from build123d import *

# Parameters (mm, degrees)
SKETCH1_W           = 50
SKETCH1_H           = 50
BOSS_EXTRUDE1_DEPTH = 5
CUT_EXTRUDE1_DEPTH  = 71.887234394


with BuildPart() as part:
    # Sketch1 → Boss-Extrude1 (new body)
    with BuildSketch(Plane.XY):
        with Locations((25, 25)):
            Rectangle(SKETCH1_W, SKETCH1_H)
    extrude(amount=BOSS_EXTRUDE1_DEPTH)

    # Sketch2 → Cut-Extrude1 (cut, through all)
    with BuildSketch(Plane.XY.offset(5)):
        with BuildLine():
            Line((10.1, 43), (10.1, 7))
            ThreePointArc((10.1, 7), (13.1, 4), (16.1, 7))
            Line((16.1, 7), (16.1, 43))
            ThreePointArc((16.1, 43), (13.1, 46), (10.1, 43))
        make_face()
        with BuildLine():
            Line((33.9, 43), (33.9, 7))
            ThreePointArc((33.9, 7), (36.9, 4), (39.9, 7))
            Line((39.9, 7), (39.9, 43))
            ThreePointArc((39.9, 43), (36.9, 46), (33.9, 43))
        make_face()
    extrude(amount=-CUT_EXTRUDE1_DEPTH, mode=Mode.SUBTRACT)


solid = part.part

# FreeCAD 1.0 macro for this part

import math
import FreeCAD as App
import Part
import Sketcher

V = App.Vector


def add_polygon(sketch, points):
    """Adds a closed chain of lines whose ends are joined by coincident constraints."""
    first, n = sketch.GeometryCount, len(points)
    for a, b in zip(points, points[1:] + points[:1]):
        sketch.addGeometry(Part.LineSegment(App.Vector(*a, 0), App.Vector(*b, 0)), False)
    for i in range(n):
        sketch.addConstraint(Sketcher.Constraint("Coincident", first + i, 2, first + (i + 1) % n, 1))

doc = App.newDocument("Part")
body = doc.addObject("PartDesign::Body", "Body")

# Sketch on XY plane
sketch1 = body.newObject("Sketcher::SketchObject", "Sketch")
sketch1.AttachmentSupport = (doc.getObject("XY_Plane"), [""])
sketch1.MapMode = "FlatFace"
add_polygon(sketch1, [(0, 50), (0, 0), (50, 0), (50, 50)])  # lines 0-3
sketch1.addConstraint(Sketcher.Constraint("Vertical", 0))
sketch1.addConstraint(Sketcher.Constraint("Horizontal", 1))
sketch1.addConstraint(Sketcher.Constraint("Vertical", 2))
sketch1.addConstraint(Sketcher.Constraint("Horizontal", 3))
sketch1.addConstraint(Sketcher.Constraint("Coincident", 0, 2, -1, 1))
sketch1.addConstraint(Sketcher.Constraint("Equal", 3, 0))
sketch1.addConstraint(Sketcher.Constraint("DistanceX", 1, 1, 1, 2, 50.0))
pad1 = body.newObject("PartDesign::Pad", "Pad")
pad1.Profile = sketch1
pad1.Length = 5

# Sketch on XY plane
sketch2 = body.newObject("Sketcher::SketchObject", "Sketch001")
sketch2.AttachmentSupport = (doc.getObject("XY_Plane"), [""])
sketch2.MapMode = "FlatFace"
sketch2.AttachmentOffset = App.Placement(V(0, 0, 5), App.Rotation())
sketch2.addGeometry(Part.LineSegment(V(10.1, 43, 0), V(10.1, 7, 0)), False)
sketch2.addGeometry(Part.ArcOfCircle(Part.Circle(V(13.1, 7, 0), V(0, 0, 1), 3), math.radians(180), math.radians(360)), False)
sketch2.addGeometry(Part.LineSegment(V(16.1, 7, 0), V(16.1, 43, 0)), False)
sketch2.addGeometry(Part.ArcOfCircle(Part.Circle(V(13.1, 43, 0), V(0, 0, 1), 3), math.radians(0), math.radians(180)), False)
sketch2.addGeometry(Part.LineSegment(V(33.9, 43, 0), V(33.9, 7, 0)), False)
sketch2.addGeometry(Part.ArcOfCircle(Part.Circle(V(36.9, 7, 0), V(0, 0, 1), 3), math.radians(180), math.radians(360)), False)
sketch2.addGeometry(Part.LineSegment(V(39.9, 7, 0), V(39.9, 43, 0)), False)
sketch2.addGeometry(Part.ArcOfCircle(Part.Circle(V(36.9, 43, 0), V(0, 0, 1), 3), math.radians(0), math.radians(180)), False)
sketch2.addConstraint(Sketcher.Constraint("Tangent", 0, 2, 1, 1))
sketch2.addConstraint(Sketcher.Constraint("Tangent", 1, 2, 2, 1))
sketch2.addConstraint(Sketcher.Constraint("Tangent", 2, 2, 3, 1))
sketch2.addConstraint(Sketcher.Constraint("Tangent", 3, 2, 0, 1))
sketch2.addConstraint(Sketcher.Constraint("Tangent", 4, 2, 5, 1))
sketch2.addConstraint(Sketcher.Constraint("Tangent", 5, 2, 6, 1))
sketch2.addConstraint(Sketcher.Constraint("Tangent", 6, 2, 7, 1))
sketch2.addConstraint(Sketcher.Constraint("Tangent", 7, 2, 4, 1))
sketch2.addConstraint(Sketcher.Constraint("Vertical", 0))
sketch2.addConstraint(Sketcher.Constraint("Vertical", 2))
sketch2.addConstraint(Sketcher.Constraint("Vertical", 4))
sketch2.addConstraint(Sketcher.Constraint("Vertical", 6))
sketch2.addConstraint(Sketcher.Constraint("Equal", 3, 5))
sketch2.addConstraint(Sketcher.Constraint("Horizontal", 1, 3, 5, 3))
sketch2.addConstraint(Sketcher.Constraint("Horizontal", 3, 3, 7, 3))
sketch2.addConstraint(Sketcher.Constraint("Radius", 1, 3.0))
sketch2.addConstraint(Sketcher.Constraint("DistanceY", 0, 2, 0, 1, 36.0))
sketch2.addConstraint(Sketcher.Constraint("DistanceY", -1, 1, 1, 3, 7.0))
sketch2.addConstraint(Sketcher.Constraint("DistanceX", -1, 1, 1, 3, 13.1))
sketch2.addConstraint(Sketcher.Constraint("DistanceX", -1, 1, 5, 3, 36.9))
pocket1 = body.newObject("PartDesign::Pocket", "Pocket")
pocket1.Profile = sketch2
pocket1.Type = "ThroughAll"

doc.recompute()
